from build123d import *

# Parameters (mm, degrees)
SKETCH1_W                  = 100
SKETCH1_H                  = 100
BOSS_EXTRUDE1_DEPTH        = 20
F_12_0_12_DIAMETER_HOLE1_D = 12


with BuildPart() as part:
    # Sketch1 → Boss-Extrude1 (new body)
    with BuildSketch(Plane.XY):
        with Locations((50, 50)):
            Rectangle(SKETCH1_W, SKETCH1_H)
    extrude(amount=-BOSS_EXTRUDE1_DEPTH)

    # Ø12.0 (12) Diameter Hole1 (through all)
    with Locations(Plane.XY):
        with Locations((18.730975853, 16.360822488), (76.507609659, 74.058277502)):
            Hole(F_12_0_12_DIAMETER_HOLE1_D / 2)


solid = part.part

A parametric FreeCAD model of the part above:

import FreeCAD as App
import Part
import Sketcher
Q = App.Units.Quantity

doc = App.newDocument("Part")
params = doc.addObject("Spreadsheet::Sheet", "Params")
for row, (alias, value) in enumerate([
    ("sketch1_width", "100 mm"),
    ("pad1_length", "20 mm"),
    ("sketch2_diameter", "12 mm"),
    ("hole_diameter", "12 mm"),
], start=1):
    params.set(f"A{row}", alias)
    params.set(f"B{row}", "=" + value)
    params.setAlias(f"B{row}", alias)

body = doc.addObject("PartDesign::Body", "Body")

# Sketch on XY plane
sketch1 = body.newObject("Sketcher::SketchObject", "Sketch")
sketch1.AttachmentSupport = (doc.getObject("XY_Plane"), [""])
sketch1.MapMode = "FlatFace"
sketch1.addGeometry(Part.LineSegment(App.Vector(0, 100, 0), App.Vector(0, 0, 0)), False)
sketch1.addGeometry(Part.LineSegment(App.Vector(0, 0, 0), App.Vector(100, 0, 0)), False)
sketch1.addGeometry(Part.LineSegment(App.Vector(100, 0, 0), App.Vector(100, 100, 0)), False)
sketch1.addGeometry(Part.LineSegment(App.Vector(100, 100, 0), App.Vector(0, 100, 0)), False)
sketch1.addConstraint(Sketcher.Constraint("Coincident", 0, 2, 1, 1))
sketch1.addConstraint(Sketcher.Constraint("Coincident", 1, 2, 2, 1))
sketch1.addConstraint(Sketcher.Constraint("Coincident", 2, 2, 3, 1))
sketch1.addConstraint(Sketcher.Constraint("Coincident", 3, 2, 0, 1))
sketch1.addConstraint(Sketcher.Constraint("Vertical", 0))
sketch1.addConstraint(Sketcher.Constraint("Horizontal", 1))
sketch1.addConstraint(Sketcher.Constraint("Vertical", 2))
sketch1.addConstraint(Sketcher.Constraint("Horizontal", 3))
sketch1.addConstraint(Sketcher.Constraint("Coincident", 0, 2, -1, 1))
sketch1.addConstraint(Sketcher.Constraint("Equal", 3, 0))
sketch1.addConstraint(Sketcher.Constraint("DistanceX", 1, 1, 1, 2, Q("100 mm")))
sketch1.setExpression("Constraints[10]", "Params.sketch1_width")
pad1 = body.newObject("PartDesign::Pad", "Pad")
pad1.Profile = sketch1
pad1.setExpression("Length", "Params.pad1_length")
pad1.Reversed = True

# Sketch on XY plane
sketch2 = body.newObject("Sketcher::SketchObject", "Sketch001")
sketch2.AttachmentSupport = (doc.getObject("XY_Plane"), [""])
sketch2.MapMode = "FlatFace"
sketch2.addGeometry(Part.Circle(App.Vector(18.730976, 16.360822, 0), App.Vector(0, 0, 1), 6), False)
sketch2.addGeometry(Part.Circle(App.Vector(76.50761, 74.058278, 0), App.Vector(0, 0, 1), 6), False)
sketch2.addConstraint(Sketcher.Constraint("Equal", 0, 1))
sketch2.addConstraint(Sketcher.Constraint("Diameter", 0, Q("12 mm")))
sketch2.addConstraint(Sketcher.Constraint("DistanceX", -1, 1, 1, 3, Q("76.50761 mm")))
sketch2.addConstraint(Sketcher.Constraint("DistanceX", -1, 1, 0, 3, Q("18.730976 mm")))
sketch2.addConstraint(Sketcher.Constraint("DistanceY", -1, 1, 0, 3, Q("16.360822 mm")))
sketch2.addConstraint(Sketcher.Constraint("DistanceY", -1, 1, 1, 3, Q("74.058278 mm")))
sketch2.setExpression("Constraints[1]", "Params.sketch2_diameter")
doc.recompute()
hole = body.newObject("PartDesign::Hole", "Hole")
hole.Profile = sketch2
hole.ThreadType = "None"
hole.setExpression("Diameter", "Params.hole_diameter")
hole.DepthType = "ThroughAll"

doc.recompute()
